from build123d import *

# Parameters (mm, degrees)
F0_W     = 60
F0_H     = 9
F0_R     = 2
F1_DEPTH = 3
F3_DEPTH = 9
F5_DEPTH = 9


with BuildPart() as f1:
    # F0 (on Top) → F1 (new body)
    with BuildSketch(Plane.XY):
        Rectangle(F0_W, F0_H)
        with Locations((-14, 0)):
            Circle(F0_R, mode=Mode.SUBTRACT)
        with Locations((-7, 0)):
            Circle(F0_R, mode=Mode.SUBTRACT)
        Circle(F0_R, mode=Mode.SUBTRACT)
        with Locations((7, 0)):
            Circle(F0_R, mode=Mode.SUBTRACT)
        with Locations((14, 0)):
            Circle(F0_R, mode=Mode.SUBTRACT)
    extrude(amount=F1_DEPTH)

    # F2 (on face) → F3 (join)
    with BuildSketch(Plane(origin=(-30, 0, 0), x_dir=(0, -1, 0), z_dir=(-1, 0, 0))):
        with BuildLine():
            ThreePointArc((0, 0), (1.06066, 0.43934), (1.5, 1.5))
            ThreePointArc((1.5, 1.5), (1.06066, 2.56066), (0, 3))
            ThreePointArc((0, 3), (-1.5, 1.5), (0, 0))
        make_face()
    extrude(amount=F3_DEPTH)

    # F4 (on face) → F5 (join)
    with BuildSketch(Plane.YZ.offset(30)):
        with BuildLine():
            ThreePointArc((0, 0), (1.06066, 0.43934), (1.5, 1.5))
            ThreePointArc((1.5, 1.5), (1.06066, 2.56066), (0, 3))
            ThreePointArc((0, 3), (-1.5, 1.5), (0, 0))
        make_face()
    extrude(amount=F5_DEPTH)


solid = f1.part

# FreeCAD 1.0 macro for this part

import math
import FreeCAD as App
import Part
import Sketcher

V = App.Vector


def add_polygon(sketch, points):
    """Adds a closed chain of lines whose ends are joined by coincident constraints."""
    first, n = sketch.GeometryCount, len(points)
    for a, b in zip(points, points[1:] + points[:1]):
        sketch.addGeometry(Part.LineSegment(App.Vector(*a, 0), App.Vector(*b, 0)), False)
    for i in range(n):
        sketch.addConstraint(Sketcher.Constraint("Coincident", first + i, 2, first + (i + 1) % n, 1))

doc = App.newDocument("Part")
params = doc.addObject("Spreadsheet::Sheet", "Params")
for row, (alias, value) in enumerate([
    ("sketch1_diameter", "4 mm"),
    ("sketch1_width", "60 mm"),
    ("sketch1_height", "9 mm"),
    ("pad1_length", "3 mm"),
    ("sketch2_radius", "1.500001 mm"),
    ("pad2_length", "9 mm"),
    ("sketch3_radius", "1.500001 mm"),
    ("pad3_length", "9 mm"),
], start=1):
    params.set(f"A{row}", alias)
    params.set(f"B{row}", "=" + value)
    params.setAlias(f"B{row}", alias)

body = doc.addObject("PartDesign::Body", "Body")

sketch1 = body.newObject("Sketcher::SketchObject", "Sketch")
sketch1.AttachmentSupport = (doc.getObject("XY_Plane"), [""])
sketch1.MapMode = "FlatFace"
add_polygon(sketch1, [(-30, 4.5), (-30, -4.5), (30, -4.5), (30, 4.5)])
sketch1.addGeometry(Part.Circle(V(-14, 0, 0), V(0, 0, 1), 2), False)
sketch1.addGeometry(Part.Circle(V(-7, 0, 0), V(0, 0, 1), 2), False)
sketch1.addGeometry(Part.Circle(V(0, 0, 0), V(0, 0, 1), 2), False)
sketch1.addGeometry(Part.Circle(V(7, 0, 0), V(0, 0, 1), 2), False)
sketch1.addGeometry(Part.Circle(V(14, 0, 0), V(0, 0, 1), 2), False)
sketch1.addConstraint([
    Sketcher.Constraint("Vertical", 0),
    Sketcher.Constraint("Horizontal", 1),
    Sketcher.Constraint("Vertical", 2),
    Sketcher.Constraint("Horizontal", 3),
    Sketcher.Constraint("Coincident", 6, 3, -1, 1),
    Sketcher.Constraint("Equal", 4, 5),
    Sketcher.Constraint("Equal", 5, 6),
    Sketcher.Constraint("Equal", 6, 7),
    Sketcher.Constraint("Equal", 7, 8),
    Sketcher.Constraint("Symmetric", 5, 3, 7, 3, -1, 1),
    Sketcher.Constraint("Symmetric", 4, 3, 8, 3, -1, 1),
    Sketcher.Constraint("Symmetric", 0, 2, 2, 2, -1, 1),
    Sketcher.Constraint("PointOnObject", 4, 3, -1),
    Sketcher.Constraint("PointOnObject", 5, 3, -1),
    Sketcher.Constraint("Diameter", 4, 4.0),
    Sketcher.Constraint("DistanceX", 1, 1, 1, 2, 60.0),
    Sketcher.Constraint("DistanceY", 0, 2, 0, 1, 9.0),
    Sketcher.Constraint("DistanceX", 4, 3, -1, 1, 14.0),
    Sketcher.Constraint("DistanceX", 5, 3, -1, 1, 7.0),
])
sketch1.setExpression("Constraints[18]", "Params.sketch1_diameter")
sketch1.setExpression("Constraints[19]", "Params.sketch1_width")
sketch1.setExpression("Constraints[20]", "Params.sketch1_height")
pad1 = body.newObject("PartDesign::Pad", "Pad")
pad1.Profile = sketch1
pad1.setExpression("Length", "Params.pad1_length")

sketch2 = body.newObject("Sketcher::SketchObject", "Sketch001")
sketch2.AttachmentSupport = (doc.getObject("YZ_Plane"), [""])
sketch2.MapMode = "FlatFace"
sketch2.AttachmentOffset = App.Placement(V(0, 0, -30), App.Rotation())
sketch2.addGeometry([
    Part.ArcOfCircle(Part.Circle(V(0, 1.5, 0), V(0, 0, 1), 1.5), math.radians(-180), math.radians(-90)),
    Part.ArcOfCircle(Part.Circle(V(0, 1.5, 0), V(0, 0, 1), 1.5), math.radians(90), math.radians(180)),
    Part.ArcOfCircle(Part.Circle(V(0, 1.5, 0), V(0, 0, 1), 1.5), math.radians(-90), math.radians(90)),
], False)
sketch2.addConstraint([
    Sketcher.Constraint("Tangent", 0, 1, 1, 2),
    Sketcher.Constraint("Tangent", 1, 1, 2, 2),
    Sketcher.Constraint("Tangent", 2, 1, 0, 2),
    Sketcher.Constraint("Coincident", 2, 1, -1, 1),
    Sketcher.Constraint("PointOnObject", 0, 3, -2),
    Sketcher.Constraint("PointOnObject", 1, 1, -2),
    Sketcher.Constraint("Horizontal", 2, 3, 0, 1),
    Sketcher.Constraint("Radius", 0, 1.500001),
])
sketch2.setExpression("Constraints[7]", "Params.sketch2_radius")
pad2 = body.newObject("PartDesign::Pad", "Pad001")
pad2.Profile = sketch2
pad2.setExpression("Length", "Params.pad2_length")
pad2.Reversed = True

sketch3 = body.newObject("Sketcher::SketchObject", "Sketch002")
sketch3.AttachmentSupport = (doc.getObject("YZ_Plane"), [""])
sketch3.MapMode = "FlatFace"
sketch3.AttachmentOffset = App.Placement(V(0, 0, 30), App.Rotation())
sketch3.addGeometry([
    Part.ArcOfCircle(Part.Circle(V(0, 1.5, 0), V(0, 0, 1), 1.5), math.radians(-90), math.radians(0)),
    Part.ArcOfCircle(Part.Circle(V(0, 1.5, 0), V(0, 0, 1), 1.5), math.radians(0), math.radians(90)),
    Part.ArcOfCircle(Part.Circle(V(0, 1.5, 0), V(0, 0, 1), 1.5), math.radians(90), math.radians(270)),
], False)
sketch3.addConstraint([
    Sketcher.Constraint("Tangent", 0, 2, 1, 1),
    Sketcher.Constraint("Tangent", 1, 2, 2, 1),
    Sketcher.Constraint("Tangent", 2, 2, 0, 1),
    Sketcher.Constraint("Coincident", 2, 2, -1, 1),
    Sketcher.Constraint("PointOnObject", 0, 3, -2),
    Sketcher.Constraint("PointOnObject", 1, 2, -2),
    Sketcher.Constraint("Horizontal", 2, 3, 0, 2),
    Sketcher.Constraint("Radius", 0, 1.500001),
])
sketch3.setExpression("Constraints[7]", "Params.sketch3_radius")
pad3 = body.newObject("PartDesign::Pad", "Pad002")
pad3.Profile = sketch3
pad3.setExpression("Length", "Params.pad3_length")

doc.recompute()
